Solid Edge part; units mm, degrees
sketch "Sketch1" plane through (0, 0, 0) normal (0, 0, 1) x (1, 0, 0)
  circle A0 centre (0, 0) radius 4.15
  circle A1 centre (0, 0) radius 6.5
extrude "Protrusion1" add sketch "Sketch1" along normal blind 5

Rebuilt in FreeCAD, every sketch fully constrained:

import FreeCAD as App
import Part
import Sketcher

V = App.Vector

doc = App.newDocument("Part")
body = doc.addObject("PartDesign::Body", "Body")

# Sketch on XY plane
sketch1 = doc.addObject("Sketcher::SketchObject", "Sketch")
body.addObject(sketch1)
sketch1.AttachmentSupport = (doc.XY_Plane, [""])
sketch1.MapMode = "FlatFace"
sketch1.addGeometry([
    Part.Circle(V(0, 0, 0), V(0, 0, 1), 6.5),
    Part.Circle(V(0, 0, 0), V(0, 0, 1), 4.2),
], False)
sketch1.addConstraint([
    Sketcher.Constraint("Coincident", 0, 3, -1, 1),
    Sketcher.Constraint("Coincident", 1, 3, -1, 1),
    Sketcher.Constraint("Diameter", 0, 13.0),
    Sketcher.Constraint("Diameter", 1, 8.3),
])
pad1 = doc.addObject("PartDesign::Pad", "Pad")
body.addObject(pad1)
pad1.Profile = sketch1
pad1.Length = 5

doc.recompute()
